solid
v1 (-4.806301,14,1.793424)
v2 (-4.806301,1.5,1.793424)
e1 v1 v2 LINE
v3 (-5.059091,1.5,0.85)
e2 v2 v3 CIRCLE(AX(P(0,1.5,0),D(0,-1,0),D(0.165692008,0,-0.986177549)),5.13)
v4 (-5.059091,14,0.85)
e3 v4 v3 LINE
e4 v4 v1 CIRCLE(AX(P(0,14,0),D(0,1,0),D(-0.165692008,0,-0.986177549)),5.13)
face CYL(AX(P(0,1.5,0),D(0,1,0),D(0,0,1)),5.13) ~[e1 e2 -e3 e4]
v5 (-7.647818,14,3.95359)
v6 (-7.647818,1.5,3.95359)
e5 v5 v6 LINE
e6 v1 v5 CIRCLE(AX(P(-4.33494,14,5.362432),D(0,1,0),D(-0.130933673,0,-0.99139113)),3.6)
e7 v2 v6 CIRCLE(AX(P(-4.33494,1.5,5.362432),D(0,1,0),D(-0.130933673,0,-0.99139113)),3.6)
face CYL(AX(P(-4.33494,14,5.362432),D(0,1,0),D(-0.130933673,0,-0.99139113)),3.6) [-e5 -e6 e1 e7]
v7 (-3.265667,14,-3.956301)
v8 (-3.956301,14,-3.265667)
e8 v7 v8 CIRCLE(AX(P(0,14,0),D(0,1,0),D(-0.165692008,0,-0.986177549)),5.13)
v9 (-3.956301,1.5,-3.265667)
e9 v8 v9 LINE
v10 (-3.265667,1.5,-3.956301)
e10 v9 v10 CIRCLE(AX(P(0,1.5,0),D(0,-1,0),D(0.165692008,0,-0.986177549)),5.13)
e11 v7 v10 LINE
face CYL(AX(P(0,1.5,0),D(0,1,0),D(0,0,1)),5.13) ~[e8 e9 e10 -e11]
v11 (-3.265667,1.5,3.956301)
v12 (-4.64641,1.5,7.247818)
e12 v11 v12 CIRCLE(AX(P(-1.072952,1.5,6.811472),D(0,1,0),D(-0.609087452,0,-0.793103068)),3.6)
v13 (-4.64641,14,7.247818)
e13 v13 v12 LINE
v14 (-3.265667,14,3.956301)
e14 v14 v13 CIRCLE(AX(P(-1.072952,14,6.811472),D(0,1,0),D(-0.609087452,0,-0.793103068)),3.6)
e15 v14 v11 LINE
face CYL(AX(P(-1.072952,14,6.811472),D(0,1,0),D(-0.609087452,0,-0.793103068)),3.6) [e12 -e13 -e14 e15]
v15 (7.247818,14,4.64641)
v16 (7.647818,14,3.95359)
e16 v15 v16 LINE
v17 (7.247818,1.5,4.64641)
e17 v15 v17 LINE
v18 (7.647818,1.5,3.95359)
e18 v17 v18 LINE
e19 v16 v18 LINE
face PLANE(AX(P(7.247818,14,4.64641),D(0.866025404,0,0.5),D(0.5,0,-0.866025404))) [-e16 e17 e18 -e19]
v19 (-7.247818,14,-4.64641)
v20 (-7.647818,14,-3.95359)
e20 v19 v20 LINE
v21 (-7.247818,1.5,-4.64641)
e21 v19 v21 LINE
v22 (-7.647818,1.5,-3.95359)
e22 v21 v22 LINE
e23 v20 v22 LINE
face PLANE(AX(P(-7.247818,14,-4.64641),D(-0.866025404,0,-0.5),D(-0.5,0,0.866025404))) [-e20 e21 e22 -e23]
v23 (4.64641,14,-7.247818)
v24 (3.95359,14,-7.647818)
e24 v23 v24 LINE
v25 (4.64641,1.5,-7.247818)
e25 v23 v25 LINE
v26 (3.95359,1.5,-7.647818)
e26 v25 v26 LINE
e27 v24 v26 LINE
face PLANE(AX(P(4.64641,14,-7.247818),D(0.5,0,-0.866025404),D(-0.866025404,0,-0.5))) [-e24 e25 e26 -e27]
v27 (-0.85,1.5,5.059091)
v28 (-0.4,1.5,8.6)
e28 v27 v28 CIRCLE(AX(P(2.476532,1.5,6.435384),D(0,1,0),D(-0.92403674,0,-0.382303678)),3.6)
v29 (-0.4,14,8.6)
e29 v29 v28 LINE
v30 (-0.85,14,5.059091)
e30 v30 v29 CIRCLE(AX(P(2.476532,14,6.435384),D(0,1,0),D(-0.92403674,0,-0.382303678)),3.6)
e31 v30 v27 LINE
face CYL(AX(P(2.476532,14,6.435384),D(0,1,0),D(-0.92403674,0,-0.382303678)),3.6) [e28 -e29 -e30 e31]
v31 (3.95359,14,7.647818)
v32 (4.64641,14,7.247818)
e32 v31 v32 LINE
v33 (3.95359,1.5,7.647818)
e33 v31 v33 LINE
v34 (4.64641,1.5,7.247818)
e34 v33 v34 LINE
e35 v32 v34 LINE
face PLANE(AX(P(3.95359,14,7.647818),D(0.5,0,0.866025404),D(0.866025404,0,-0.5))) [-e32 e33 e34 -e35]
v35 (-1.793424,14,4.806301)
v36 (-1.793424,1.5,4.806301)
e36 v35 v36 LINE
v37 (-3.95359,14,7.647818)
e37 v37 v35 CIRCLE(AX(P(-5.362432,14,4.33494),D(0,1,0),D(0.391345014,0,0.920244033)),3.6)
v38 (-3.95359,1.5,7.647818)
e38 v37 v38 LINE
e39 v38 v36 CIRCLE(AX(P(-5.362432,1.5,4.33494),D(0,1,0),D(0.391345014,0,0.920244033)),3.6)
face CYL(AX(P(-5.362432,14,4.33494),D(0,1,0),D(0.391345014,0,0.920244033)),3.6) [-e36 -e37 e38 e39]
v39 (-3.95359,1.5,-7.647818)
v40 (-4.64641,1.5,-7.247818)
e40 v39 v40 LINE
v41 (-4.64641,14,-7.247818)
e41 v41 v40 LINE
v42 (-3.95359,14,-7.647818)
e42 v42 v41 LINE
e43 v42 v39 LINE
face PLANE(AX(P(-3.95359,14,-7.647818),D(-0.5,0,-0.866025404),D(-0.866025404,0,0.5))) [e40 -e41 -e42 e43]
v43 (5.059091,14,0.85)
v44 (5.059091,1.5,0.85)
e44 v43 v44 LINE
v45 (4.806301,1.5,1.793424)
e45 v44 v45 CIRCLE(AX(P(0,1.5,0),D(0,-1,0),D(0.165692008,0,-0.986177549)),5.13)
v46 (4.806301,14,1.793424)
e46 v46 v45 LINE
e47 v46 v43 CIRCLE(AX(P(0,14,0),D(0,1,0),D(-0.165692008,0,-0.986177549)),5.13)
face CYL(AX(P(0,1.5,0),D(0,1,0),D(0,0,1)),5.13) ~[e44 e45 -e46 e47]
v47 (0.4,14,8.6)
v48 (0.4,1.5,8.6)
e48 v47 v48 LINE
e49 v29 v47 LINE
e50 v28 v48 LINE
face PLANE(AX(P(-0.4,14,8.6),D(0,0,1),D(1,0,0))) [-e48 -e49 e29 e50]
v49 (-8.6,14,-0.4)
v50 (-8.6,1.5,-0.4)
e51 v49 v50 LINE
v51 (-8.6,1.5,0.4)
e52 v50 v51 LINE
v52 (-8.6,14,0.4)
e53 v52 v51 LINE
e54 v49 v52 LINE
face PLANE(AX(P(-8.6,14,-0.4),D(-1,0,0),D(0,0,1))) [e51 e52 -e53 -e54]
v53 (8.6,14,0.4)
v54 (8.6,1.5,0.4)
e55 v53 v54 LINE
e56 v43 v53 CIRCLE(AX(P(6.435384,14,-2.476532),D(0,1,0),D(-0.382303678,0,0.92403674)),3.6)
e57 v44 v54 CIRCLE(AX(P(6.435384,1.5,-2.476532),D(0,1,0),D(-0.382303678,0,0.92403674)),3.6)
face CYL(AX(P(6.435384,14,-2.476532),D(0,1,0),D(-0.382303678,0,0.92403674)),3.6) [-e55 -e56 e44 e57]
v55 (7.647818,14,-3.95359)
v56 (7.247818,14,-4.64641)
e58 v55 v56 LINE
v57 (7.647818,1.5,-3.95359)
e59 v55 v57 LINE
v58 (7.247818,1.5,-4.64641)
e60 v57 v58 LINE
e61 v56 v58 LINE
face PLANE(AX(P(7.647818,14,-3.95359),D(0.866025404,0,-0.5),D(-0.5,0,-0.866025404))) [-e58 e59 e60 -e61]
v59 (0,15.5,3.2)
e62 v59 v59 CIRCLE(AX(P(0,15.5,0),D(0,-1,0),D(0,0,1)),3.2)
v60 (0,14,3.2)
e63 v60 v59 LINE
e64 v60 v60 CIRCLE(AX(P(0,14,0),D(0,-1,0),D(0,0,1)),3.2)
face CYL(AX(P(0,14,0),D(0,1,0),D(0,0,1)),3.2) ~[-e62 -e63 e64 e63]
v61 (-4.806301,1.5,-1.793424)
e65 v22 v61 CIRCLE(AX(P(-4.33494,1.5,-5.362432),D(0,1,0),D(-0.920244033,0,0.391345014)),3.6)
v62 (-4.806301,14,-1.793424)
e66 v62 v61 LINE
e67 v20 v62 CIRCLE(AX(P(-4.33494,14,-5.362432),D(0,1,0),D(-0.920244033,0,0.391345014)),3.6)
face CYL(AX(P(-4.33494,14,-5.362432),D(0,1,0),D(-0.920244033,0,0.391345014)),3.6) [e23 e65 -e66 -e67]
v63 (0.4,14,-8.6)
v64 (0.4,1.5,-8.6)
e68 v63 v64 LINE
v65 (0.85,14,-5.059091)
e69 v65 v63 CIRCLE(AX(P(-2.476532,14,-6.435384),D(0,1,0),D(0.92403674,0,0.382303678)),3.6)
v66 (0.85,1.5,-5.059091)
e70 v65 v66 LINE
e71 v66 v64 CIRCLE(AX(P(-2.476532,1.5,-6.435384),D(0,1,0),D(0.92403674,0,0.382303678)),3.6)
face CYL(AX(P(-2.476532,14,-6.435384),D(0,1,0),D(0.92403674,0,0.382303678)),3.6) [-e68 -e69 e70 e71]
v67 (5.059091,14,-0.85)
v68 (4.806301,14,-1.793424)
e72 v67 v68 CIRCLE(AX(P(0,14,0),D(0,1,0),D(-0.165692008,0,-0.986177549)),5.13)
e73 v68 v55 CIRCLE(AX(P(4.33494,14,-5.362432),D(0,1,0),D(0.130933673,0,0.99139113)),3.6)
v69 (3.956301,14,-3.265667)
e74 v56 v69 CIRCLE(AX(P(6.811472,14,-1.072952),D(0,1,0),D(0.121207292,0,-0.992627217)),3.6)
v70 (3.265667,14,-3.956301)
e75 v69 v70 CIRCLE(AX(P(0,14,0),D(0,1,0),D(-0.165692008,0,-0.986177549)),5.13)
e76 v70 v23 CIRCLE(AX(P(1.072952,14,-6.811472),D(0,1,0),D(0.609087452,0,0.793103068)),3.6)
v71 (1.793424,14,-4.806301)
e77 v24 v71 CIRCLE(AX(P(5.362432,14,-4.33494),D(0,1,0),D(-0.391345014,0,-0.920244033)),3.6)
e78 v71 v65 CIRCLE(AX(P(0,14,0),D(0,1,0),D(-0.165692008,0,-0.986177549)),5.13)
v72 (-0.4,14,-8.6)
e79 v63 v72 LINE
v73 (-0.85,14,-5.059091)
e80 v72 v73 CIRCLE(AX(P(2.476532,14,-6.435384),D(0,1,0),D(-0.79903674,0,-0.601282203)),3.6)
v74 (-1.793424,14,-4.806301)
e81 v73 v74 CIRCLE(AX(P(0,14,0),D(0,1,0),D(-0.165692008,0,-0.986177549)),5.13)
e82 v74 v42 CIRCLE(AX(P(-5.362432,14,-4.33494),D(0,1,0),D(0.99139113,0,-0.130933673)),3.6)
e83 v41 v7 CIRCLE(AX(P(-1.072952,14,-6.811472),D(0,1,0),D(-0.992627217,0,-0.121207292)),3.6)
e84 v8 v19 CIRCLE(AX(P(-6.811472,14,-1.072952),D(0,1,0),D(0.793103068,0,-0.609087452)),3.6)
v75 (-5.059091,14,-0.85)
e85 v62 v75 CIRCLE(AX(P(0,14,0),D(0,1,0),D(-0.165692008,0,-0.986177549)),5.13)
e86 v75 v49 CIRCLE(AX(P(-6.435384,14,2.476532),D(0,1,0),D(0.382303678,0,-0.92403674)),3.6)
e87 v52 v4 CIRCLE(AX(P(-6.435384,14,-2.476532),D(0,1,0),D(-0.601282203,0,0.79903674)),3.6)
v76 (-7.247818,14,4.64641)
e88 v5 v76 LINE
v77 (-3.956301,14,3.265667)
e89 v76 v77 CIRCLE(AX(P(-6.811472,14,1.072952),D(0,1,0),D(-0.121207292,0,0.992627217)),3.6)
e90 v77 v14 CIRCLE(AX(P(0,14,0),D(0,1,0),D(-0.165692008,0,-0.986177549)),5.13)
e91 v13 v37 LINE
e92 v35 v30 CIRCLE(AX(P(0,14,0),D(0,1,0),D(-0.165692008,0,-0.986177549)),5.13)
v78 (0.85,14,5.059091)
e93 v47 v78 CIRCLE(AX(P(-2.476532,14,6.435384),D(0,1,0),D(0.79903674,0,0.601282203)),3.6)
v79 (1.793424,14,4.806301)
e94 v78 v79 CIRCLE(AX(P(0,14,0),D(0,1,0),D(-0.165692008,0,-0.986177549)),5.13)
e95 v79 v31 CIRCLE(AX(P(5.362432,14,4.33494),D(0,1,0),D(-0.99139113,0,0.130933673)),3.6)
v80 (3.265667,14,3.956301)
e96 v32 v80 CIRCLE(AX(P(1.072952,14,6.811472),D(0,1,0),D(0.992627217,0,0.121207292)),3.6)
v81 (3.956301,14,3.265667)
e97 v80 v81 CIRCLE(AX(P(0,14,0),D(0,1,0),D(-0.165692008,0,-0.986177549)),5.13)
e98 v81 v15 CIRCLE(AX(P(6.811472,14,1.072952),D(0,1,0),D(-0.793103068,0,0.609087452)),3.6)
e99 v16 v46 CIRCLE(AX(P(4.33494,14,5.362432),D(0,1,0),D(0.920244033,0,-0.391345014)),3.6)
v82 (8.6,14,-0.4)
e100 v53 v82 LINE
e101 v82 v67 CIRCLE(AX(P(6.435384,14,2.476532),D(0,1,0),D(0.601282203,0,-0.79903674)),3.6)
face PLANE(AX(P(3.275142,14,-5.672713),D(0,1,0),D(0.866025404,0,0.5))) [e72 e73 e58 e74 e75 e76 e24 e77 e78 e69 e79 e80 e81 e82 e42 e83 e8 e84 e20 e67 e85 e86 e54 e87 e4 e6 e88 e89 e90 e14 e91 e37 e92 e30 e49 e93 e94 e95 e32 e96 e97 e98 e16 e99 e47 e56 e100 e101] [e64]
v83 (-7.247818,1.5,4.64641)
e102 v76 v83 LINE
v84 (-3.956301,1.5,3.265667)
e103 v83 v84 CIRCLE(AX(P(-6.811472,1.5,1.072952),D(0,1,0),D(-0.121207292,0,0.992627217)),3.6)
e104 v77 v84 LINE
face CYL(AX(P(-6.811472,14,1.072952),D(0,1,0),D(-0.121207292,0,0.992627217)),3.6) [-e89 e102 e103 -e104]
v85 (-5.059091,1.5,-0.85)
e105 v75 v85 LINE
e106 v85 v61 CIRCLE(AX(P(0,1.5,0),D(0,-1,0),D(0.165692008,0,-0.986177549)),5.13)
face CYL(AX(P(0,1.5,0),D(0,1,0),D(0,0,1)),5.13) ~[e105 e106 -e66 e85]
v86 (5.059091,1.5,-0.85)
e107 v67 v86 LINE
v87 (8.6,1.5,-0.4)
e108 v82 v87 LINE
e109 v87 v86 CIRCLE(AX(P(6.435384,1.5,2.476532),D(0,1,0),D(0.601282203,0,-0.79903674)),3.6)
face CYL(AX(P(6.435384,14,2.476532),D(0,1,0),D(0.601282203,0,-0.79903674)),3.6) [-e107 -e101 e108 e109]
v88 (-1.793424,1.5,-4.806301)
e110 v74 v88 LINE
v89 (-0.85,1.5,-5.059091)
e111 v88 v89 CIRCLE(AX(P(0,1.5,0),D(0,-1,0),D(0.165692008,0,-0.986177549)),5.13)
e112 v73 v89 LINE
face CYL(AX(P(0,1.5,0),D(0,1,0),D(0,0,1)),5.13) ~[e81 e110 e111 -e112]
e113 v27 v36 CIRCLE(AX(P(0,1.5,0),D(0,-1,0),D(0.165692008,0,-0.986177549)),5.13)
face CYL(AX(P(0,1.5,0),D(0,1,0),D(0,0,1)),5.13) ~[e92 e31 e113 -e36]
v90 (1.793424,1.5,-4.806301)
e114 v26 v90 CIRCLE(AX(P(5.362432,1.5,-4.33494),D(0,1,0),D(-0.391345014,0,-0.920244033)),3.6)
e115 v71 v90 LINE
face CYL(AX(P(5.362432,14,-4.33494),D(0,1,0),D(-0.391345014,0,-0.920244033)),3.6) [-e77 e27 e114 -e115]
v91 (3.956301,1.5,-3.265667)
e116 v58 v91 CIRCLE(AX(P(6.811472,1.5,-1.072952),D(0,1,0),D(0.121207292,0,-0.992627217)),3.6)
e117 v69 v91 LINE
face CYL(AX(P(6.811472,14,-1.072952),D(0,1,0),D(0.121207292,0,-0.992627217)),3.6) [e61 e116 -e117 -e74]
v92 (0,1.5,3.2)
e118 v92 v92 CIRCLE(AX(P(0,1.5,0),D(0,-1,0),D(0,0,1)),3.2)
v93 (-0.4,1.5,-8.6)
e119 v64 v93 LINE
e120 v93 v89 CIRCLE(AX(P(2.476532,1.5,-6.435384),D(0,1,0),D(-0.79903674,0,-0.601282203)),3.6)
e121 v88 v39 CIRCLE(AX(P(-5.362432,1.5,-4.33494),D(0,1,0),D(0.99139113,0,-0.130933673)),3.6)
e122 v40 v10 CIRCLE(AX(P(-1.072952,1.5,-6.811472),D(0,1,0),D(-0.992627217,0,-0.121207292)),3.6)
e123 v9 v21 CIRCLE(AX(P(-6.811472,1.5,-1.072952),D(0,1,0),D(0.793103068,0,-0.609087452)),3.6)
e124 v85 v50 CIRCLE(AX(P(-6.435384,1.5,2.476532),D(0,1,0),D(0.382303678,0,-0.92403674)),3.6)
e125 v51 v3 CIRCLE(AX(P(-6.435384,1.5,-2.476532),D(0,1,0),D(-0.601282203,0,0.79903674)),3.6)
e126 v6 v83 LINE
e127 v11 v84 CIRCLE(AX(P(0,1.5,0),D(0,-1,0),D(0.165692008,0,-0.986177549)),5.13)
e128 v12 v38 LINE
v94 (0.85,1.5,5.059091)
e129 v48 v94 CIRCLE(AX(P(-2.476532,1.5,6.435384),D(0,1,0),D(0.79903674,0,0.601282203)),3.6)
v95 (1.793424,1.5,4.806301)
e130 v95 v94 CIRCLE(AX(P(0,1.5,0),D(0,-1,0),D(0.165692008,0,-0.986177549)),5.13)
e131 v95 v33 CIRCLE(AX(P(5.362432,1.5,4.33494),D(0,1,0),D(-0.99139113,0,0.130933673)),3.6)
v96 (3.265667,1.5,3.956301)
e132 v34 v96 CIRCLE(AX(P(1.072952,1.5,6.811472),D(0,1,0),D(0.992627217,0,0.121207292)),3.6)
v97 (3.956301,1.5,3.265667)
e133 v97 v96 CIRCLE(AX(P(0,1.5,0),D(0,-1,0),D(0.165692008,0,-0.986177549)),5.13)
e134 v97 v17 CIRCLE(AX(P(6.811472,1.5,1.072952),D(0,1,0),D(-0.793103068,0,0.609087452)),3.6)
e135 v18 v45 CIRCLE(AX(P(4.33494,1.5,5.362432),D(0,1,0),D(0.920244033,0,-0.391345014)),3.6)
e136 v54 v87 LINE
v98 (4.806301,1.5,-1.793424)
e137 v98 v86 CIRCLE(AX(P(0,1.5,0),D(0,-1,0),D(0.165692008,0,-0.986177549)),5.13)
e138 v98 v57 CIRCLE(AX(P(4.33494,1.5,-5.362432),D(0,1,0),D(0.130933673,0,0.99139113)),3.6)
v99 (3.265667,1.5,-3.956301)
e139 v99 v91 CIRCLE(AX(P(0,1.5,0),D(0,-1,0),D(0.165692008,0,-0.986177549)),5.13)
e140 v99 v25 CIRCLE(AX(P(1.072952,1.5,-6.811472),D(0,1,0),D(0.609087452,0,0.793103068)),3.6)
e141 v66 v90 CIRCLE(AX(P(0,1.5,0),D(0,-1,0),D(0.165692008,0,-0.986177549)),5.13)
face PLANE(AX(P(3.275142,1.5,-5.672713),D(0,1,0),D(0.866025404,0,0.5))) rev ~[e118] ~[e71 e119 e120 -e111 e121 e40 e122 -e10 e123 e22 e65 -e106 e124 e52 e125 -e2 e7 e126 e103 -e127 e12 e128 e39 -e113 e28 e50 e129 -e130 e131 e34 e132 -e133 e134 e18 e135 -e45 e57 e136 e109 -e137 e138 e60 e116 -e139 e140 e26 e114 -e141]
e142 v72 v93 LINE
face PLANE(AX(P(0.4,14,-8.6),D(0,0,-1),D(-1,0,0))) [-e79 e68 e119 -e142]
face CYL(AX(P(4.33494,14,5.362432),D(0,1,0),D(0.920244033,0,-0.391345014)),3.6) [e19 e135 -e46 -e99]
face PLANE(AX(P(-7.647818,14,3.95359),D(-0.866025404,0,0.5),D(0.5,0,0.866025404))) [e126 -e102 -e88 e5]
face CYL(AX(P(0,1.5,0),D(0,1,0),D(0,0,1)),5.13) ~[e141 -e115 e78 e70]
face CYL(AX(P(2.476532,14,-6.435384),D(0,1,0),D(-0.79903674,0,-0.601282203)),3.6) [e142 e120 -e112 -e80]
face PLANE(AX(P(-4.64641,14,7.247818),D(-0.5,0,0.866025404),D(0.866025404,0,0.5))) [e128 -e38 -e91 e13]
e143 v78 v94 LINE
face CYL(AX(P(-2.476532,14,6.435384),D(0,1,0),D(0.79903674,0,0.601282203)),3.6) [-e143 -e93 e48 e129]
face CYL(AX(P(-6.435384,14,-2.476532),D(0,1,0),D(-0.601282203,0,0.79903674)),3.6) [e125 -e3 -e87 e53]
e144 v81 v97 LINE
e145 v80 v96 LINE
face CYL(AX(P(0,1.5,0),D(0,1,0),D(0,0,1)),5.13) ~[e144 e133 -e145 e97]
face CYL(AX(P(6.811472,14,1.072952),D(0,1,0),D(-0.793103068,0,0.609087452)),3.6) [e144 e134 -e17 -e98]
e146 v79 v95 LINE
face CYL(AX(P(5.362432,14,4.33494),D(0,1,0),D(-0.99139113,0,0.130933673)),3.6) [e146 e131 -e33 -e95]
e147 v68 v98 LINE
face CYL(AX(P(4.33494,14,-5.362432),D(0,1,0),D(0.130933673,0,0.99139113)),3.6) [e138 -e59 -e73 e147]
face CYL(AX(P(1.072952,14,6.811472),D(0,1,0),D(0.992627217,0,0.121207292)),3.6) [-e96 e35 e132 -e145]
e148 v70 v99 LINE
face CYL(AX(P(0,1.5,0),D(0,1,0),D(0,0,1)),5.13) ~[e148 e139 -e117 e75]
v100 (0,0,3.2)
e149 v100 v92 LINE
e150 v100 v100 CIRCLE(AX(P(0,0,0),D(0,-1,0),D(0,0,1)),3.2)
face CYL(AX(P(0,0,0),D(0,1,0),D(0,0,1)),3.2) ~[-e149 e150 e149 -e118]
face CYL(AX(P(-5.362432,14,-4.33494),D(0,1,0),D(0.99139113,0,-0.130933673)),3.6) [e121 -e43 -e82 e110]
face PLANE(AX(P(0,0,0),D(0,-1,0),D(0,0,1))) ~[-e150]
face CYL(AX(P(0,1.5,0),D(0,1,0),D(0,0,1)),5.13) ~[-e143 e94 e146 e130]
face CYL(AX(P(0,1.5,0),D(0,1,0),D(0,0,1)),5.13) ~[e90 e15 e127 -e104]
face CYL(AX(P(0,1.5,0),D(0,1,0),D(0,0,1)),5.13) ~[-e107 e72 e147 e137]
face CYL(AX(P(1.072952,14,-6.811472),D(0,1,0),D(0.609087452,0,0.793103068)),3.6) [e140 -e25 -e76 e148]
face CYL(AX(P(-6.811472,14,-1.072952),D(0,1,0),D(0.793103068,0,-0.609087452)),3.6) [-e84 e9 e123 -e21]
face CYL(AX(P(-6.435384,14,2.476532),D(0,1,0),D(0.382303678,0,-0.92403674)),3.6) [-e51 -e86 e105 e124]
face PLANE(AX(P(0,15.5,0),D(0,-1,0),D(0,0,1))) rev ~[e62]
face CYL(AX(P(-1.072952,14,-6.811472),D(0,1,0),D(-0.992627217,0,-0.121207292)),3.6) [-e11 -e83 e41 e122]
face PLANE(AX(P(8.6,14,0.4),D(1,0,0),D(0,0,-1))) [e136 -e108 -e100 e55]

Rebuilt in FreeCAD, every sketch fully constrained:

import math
import FreeCAD as App
import Part
import Sketcher
from FreeCAD import Vector

doc = App.newDocument("Part")
body = doc.addObject("PartDesign::Body", "Body")

sketch1 = body.newObject("Sketcher::SketchObject", "Sketch")
sketch1.AttachmentSupport = (doc.getObject("YZ_Plane"), [""])
sketch1.MapMode = "FlatFace"
sketch1.addGeometry([
    Part.LineSegment(Vector(0, 0, 0), Vector(0, -3.2, 0)),
    Part.LineSegment(Vector(0, -3.2, 0), Vector(1.5, -3.2, 0)),
    Part.LineSegment(Vector(1.5, -3.2, 0), Vector(1.5, -5.1, 0)),
    Part.LineSegment(Vector(1.5, -5.1, 0), Vector(14, -5.1, 0)),
    Part.LineSegment(Vector(14, -5.1, 0), Vector(14, -3.2, 0)),
    Part.LineSegment(Vector(14, -3.2, 0), Vector(15.5, -3.2, 0)),
    Part.LineSegment(Vector(15.5, -3.2, 0), Vector(15.5, 0, 0)),
    Part.LineSegment(Vector(15.5, 0, 0), Vector(0, 0, 0)),
], False)
sketch1.addConstraint([
    Sketcher.Constraint("Coincident", 0, 2, 1, 1),
    Sketcher.Constraint("Coincident", 1, 2, 2, 1),
    Sketcher.Constraint("Coincident", 2, 2, 3, 1),
    Sketcher.Constraint("Coincident", 3, 2, 4, 1),
    Sketcher.Constraint("Coincident", 4, 2, 5, 1),
    Sketcher.Constraint("Coincident", 5, 2, 6, 1),
    Sketcher.Constraint("Coincident", 6, 2, 7, 1),
    Sketcher.Constraint("Coincident", 7, 2, 0, 1),
    Sketcher.Constraint("Vertical", 0),
    Sketcher.Constraint("Horizontal", 1),
    Sketcher.Constraint("Vertical", 2),
    Sketcher.Constraint("Horizontal", 3),
    Sketcher.Constraint("Vertical", 4),
    Sketcher.Constraint("Horizontal", 5),
    Sketcher.Constraint("Vertical", 6),
    Sketcher.Constraint("Horizontal", 7),
    Sketcher.Constraint("Coincident", 7, 2, -1, 1),
    Sketcher.Constraint("Horizontal", 1, 2, 4, 2),
    Sketcher.Constraint("Equal", 1, 5),
    Sketcher.Constraint("DistanceX", 1, 1, 1, 2, 1.5),
    Sketcher.Constraint("DistanceX", 3, 1, 3, 2, 12.5),
    Sketcher.Constraint("DistanceY", 0, 2, 0, 1, 3.2),
    Sketcher.Constraint("DistanceY", 2, 2, 2, 1, 1.93),
])
revolution = body.newObject("PartDesign::Revolution", "Revolution")
revolution.Profile = sketch1
revolution.ReferenceAxis = (sketch1, ["H_Axis"])
revolution.Angle = 360

sketch2 = body.newObject("Sketcher::SketchObject", "Sketch001")
sketch2.AttachmentSupport = (doc.getObject("XZ_Plane"), [""])
sketch2.MapMode = "FlatFace"
sketch2.AttachmentOffset = App.Placement(Vector(0, 0, -14), App.Rotation())
sketch2.addGeometry([
    Part.LineSegment(Vector(0.4, -8.6, 0), Vector(-0.4, -8.6, 0)),
    Part.ArcOfCircle(Part.Circle(Vector(2.48, -6.44, 0), Vector(0, 0, 1), 3.6), math.radians(158), math.radians(217)),
    Part.LineSegment(Vector(-0.85, -5.06, 0), Vector(-0.85, -4.77, 0)),
    Part.LineSegment(Vector(-0.85, -4.77, 0), Vector(0.85, -4.77, 0)),
    Part.LineSegment(Vector(0.85, -4.77, 0), Vector(0.85, -5.06, 0)),
    Part.ArcOfCircle(Part.Circle(Vector(-2.48, -6.44, 0), Vector(0, 0, 1), 3.6), math.radians(-37), math.radians(22)),
], False)
sketch2.addConstraint([
    Sketcher.Constraint("Coincident", 0, 2, 1, 2),
    Sketcher.Constraint("Coincident", 1, 1, 2, 1),
    Sketcher.Constraint("Coincident", 2, 2, 3, 1),
    Sketcher.Constraint("Coincident", 3, 2, 4, 1),
    Sketcher.Constraint("Coincident", 4, 2, 5, 2),
    Sketcher.Constraint("Coincident", 5, 1, 0, 1),
    Sketcher.Constraint("Horizontal", 0),
    Sketcher.Constraint("Vertical", 2),
    Sketcher.Constraint("Horizontal", 3),
    Sketcher.Constraint("Vertical", 4),
    Sketcher.Constraint("Equal", 1, 5),
    Sketcher.Constraint("Symmetric", 1, 3, 5, 3, -2),
    Sketcher.Constraint("Horizontal", 1, 1, 4, 2),
    Sketcher.Constraint("Radius", 1, 3.6),
    Sketcher.Constraint("DistanceX", 0, 2, 0, 1, 0.8),
    Sketcher.Constraint("DistanceX", 3, 1, 3, 2, 1.7),
    Sketcher.Constraint("DistanceY", 0, 2, -1, 1, 8.6),
    Sketcher.Constraint("DistanceY", 2, 1, 2, 2, 0.290093),
    Sketcher.Constraint("DistanceY", 1, 1, -1, 1, 5.059091),
])
pad1 = body.newObject("PartDesign::Pad", "Pad")
pad1.Profile = sketch2
pad1.Length = 12.5
doc.recompute()

polarpattern = body.newObject("PartDesign::PolarPattern", "PolarPattern")
polarpattern.Originals = [pad1]
polarpattern.Axis = (doc.getObject("Y_Axis"), [""])
polarpattern.Angle = 360
polarpattern.Occurrences = 12
body.Tip = polarpattern

doc.recompute()
